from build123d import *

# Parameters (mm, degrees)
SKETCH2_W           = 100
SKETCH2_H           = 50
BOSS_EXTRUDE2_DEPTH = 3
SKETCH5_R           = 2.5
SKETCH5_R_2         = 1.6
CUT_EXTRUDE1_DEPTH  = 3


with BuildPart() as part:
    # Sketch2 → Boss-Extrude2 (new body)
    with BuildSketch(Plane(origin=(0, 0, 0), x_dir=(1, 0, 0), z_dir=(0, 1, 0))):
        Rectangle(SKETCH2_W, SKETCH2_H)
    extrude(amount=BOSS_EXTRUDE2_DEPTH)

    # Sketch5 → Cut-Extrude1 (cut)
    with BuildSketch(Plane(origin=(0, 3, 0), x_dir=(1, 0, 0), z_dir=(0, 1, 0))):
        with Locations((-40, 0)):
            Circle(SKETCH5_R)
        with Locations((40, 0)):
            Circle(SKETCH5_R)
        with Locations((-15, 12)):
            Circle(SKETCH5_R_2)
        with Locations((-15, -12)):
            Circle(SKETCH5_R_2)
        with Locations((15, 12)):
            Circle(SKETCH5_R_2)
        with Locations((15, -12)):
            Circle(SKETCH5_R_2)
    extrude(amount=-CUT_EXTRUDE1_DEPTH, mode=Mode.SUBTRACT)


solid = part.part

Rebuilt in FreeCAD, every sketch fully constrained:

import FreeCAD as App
import Part
import Sketcher
from FreeCAD import Vector
Q = App.Units.Quantity

doc = App.newDocument("Part")
params = doc.addObject("Spreadsheet::Sheet", "Params")
for row, (alias, value) in enumerate([
    ("sketch1_width", "100 mm"),
    ("sketch1_height", "50 mm"),
    ("pad1_length", "3 mm"),
    ("sketch2_diameter", "5 mm"),
    ("sketch2_diameter2", "3.2 mm"),
    ("pocket1_length", "3 mm"),
], start=1):
    params.set(f"A{row}", alias)
    params.set(f"B{row}", "=" + value)
    params.setAlias(f"B{row}", alias)

body = doc.addObject("PartDesign::Body", "Body")

# Sketch on XZ plane
sketch1 = doc.addObject("Sketcher::SketchObject", "Sketch")
body.addObject(sketch1)
sketch1.AttachmentSupport = (doc.XZ_Plane, [""])
sketch1.MapMode = "FlatFace"
sketch1.addGeometry(Part.LineSegment(Vector(-50, -25, 0), Vector(-50, 25, 0)), False)
sketch1.addGeometry(Part.LineSegment(Vector(-50, 25, 0), Vector(50, 25, 0)), False)
sketch1.addGeometry(Part.LineSegment(Vector(50, 25, 0), Vector(50, -25, 0)), False)
sketch1.addGeometry(Part.LineSegment(Vector(50, -25, 0), Vector(-50, -25, 0)), False)
sketch1.addConstraint(Sketcher.Constraint("Coincident", 0, 2, 1, 1))
sketch1.addConstraint(Sketcher.Constraint("Coincident", 1, 2, 2, 1))
sketch1.addConstraint(Sketcher.Constraint("Coincident", 2, 2, 3, 1))
sketch1.addConstraint(Sketcher.Constraint("Coincident", 3, 2, 0, 1))
sketch1.addConstraint(Sketcher.Constraint("Vertical", 0))
sketch1.addConstraint(Sketcher.Constraint("Horizontal", 1))
sketch1.addConstraint(Sketcher.Constraint("Vertical", 2))
sketch1.addConstraint(Sketcher.Constraint("Horizontal", 3))
sketch1.addConstraint(Sketcher.Constraint("Symmetric", 0, 2, 2, 2, -1, 1))
sketch1.addConstraint(Sketcher.Constraint("DistanceX", 1, 1, 1, 2, Q("100 mm")))
sketch1.addConstraint(Sketcher.Constraint("DistanceY", 0, 1, 0, 2, Q("50 mm")))
sketch1.setExpression("Constraints[9]", "Params.sketch1_width")
sketch1.setExpression("Constraints[10]", "Params.sketch1_height")
pad1 = doc.addObject("PartDesign::Pad", "Pad")
body.addObject(pad1)
pad1.Profile = sketch1
pad1.setExpression("Length", "Params.pad1_length")
pad1.Reversed = True

# Sketch on XZ plane
sketch2 = doc.addObject("Sketcher::SketchObject", "Sketch001")
body.addObject(sketch2)
sketch2.AttachmentSupport = (doc.XZ_Plane, [""])
sketch2.MapMode = "FlatFace"
sketch2.AttachmentOffset = App.Placement(Vector(0, 0, -3), App.Rotation())
sketch2.addGeometry(Part.Circle(Vector(-40, 0, 0), Vector(0, 0, 1), 2.5), False)
sketch2.addGeometry(Part.Circle(Vector(40, 0, 0), Vector(0, 0, 1), 2.5), False)
sketch2.addGeometry(Part.Circle(Vector(-15, -12, 0), Vector(0, 0, 1), 1.6), False)
sketch2.addGeometry(Part.Circle(Vector(-15, 12, 0), Vector(0, 0, 1), 1.6), False)
sketch2.addGeometry(Part.Circle(Vector(15, -12, 0), Vector(0, 0, 1), 1.6), False)
sketch2.addGeometry(Part.Circle(Vector(15, 12, 0), Vector(0, 0, 1), 1.6), False)
sketch2.addConstraint(Sketcher.Constraint("Equal", 0, 1))
sketch2.addConstraint(Sketcher.Constraint("Equal", 2, 3))
sketch2.addConstraint(Sketcher.Constraint("Equal", 3, 4))
sketch2.addConstraint(Sketcher.Constraint("Equal", 4, 5))
sketch2.addConstraint(Sketcher.Constraint("Symmetric", 0, 3, 1, 3, -1, 1))
sketch2.addConstraint(Sketcher.Constraint("Symmetric", 3, 3, 4, 3, -1, 1))
sketch2.addConstraint(Sketcher.Constraint("Symmetric", 2, 3, 5, 3, -1, 1))
sketch2.addConstraint(Sketcher.Constraint("Symmetric", 2, 3, 4, 3, -2))
sketch2.addConstraint(Sketcher.Constraint("PointOnObject", 0, 3, -1))
sketch2.addConstraint(Sketcher.Constraint("Diameter", 0, Q("5 mm")))
sketch2.addConstraint(Sketcher.Constraint("Diameter", 2, Q("3.2 mm")))
sketch2.addConstraint(Sketcher.Constraint("DistanceX", 0, 3, -1, 1, Q("40 mm")))
sketch2.addConstraint(Sketcher.Constraint("DistanceX", 2, 3, -1, 1, Q("15 mm")))
sketch2.addConstraint(Sketcher.Constraint("DistanceY", 2, 3, -1, 1, Q("12 mm")))
sketch2.setExpression("Constraints[9]", "Params.sketch2_diameter")
sketch2.setExpression("Constraints[10]", "Params.sketch2_diameter2")
pocket1 = doc.addObject("PartDesign::Pocket", "Pocket")
body.addObject(pocket1)
pocket1.Profile = sketch2
pocket1.setExpression("Length", "Params.pocket1_length")
pocket1.Reversed = True

doc.recompute()
